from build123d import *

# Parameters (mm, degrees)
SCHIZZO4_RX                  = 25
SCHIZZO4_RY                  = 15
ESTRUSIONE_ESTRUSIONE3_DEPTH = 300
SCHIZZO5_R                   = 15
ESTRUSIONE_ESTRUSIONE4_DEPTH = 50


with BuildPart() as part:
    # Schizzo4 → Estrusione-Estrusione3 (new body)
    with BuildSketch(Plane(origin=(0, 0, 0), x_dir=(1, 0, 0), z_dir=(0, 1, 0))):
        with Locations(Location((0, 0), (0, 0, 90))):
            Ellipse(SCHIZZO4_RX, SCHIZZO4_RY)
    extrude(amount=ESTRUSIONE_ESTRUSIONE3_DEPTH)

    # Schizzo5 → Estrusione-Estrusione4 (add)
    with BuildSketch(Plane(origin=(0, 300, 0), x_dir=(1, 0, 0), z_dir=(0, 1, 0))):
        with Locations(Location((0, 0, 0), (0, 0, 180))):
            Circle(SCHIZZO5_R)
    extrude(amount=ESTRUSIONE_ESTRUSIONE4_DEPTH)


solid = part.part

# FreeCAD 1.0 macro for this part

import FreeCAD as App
import Part
import Sketcher

V = App.Vector
Q = App.Units.Quantity

doc = App.newDocument("Part")
body = doc.addObject("PartDesign::Body", "Body")

# Sketch on XZ plane
sketch1 = body.newObject("Sketcher::SketchObject", "Sketch")
sketch1.AttachmentSupport = (doc.getObject("XZ_Plane"), [""])
sketch1.MapMode = "FlatFace"
sketch1.addGeometry(Part.Ellipse(V(0, -25, 0), V(15, 0, 0), V(0, 0, 0)), False)
sketch1.addConstraint(Sketcher.Constraint("Block", 0))
pad1 = body.newObject("PartDesign::Pad", "Pad")
pad1.Profile = sketch1
pad1.Length = 300
pad1.Reversed = True

# Sketch on XZ plane
sketch2 = body.newObject("Sketcher::SketchObject", "Sketch001")
sketch2.AttachmentSupport = (doc.getObject("XZ_Plane"), [""])
sketch2.MapMode = "FlatFace"
sketch2.AttachmentOffset = App.Placement(V(0, 0, -300), App.Rotation())
sketch2.addGeometry(Part.Circle(V(0, 0, 0), V(0, 0, 1), 15), False)
sketch2.addConstraint([
    Sketcher.Constraint("Coincident", 0, 3, -1, 1),
    Sketcher.Constraint("Diameter", 0, Q("30 mm")),
])
pad2 = body.newObject("PartDesign::Pad", "Pad001")
pad2.Profile = sketch2
pad2.Length = 50
pad2.Reversed = True

doc.recompute()
